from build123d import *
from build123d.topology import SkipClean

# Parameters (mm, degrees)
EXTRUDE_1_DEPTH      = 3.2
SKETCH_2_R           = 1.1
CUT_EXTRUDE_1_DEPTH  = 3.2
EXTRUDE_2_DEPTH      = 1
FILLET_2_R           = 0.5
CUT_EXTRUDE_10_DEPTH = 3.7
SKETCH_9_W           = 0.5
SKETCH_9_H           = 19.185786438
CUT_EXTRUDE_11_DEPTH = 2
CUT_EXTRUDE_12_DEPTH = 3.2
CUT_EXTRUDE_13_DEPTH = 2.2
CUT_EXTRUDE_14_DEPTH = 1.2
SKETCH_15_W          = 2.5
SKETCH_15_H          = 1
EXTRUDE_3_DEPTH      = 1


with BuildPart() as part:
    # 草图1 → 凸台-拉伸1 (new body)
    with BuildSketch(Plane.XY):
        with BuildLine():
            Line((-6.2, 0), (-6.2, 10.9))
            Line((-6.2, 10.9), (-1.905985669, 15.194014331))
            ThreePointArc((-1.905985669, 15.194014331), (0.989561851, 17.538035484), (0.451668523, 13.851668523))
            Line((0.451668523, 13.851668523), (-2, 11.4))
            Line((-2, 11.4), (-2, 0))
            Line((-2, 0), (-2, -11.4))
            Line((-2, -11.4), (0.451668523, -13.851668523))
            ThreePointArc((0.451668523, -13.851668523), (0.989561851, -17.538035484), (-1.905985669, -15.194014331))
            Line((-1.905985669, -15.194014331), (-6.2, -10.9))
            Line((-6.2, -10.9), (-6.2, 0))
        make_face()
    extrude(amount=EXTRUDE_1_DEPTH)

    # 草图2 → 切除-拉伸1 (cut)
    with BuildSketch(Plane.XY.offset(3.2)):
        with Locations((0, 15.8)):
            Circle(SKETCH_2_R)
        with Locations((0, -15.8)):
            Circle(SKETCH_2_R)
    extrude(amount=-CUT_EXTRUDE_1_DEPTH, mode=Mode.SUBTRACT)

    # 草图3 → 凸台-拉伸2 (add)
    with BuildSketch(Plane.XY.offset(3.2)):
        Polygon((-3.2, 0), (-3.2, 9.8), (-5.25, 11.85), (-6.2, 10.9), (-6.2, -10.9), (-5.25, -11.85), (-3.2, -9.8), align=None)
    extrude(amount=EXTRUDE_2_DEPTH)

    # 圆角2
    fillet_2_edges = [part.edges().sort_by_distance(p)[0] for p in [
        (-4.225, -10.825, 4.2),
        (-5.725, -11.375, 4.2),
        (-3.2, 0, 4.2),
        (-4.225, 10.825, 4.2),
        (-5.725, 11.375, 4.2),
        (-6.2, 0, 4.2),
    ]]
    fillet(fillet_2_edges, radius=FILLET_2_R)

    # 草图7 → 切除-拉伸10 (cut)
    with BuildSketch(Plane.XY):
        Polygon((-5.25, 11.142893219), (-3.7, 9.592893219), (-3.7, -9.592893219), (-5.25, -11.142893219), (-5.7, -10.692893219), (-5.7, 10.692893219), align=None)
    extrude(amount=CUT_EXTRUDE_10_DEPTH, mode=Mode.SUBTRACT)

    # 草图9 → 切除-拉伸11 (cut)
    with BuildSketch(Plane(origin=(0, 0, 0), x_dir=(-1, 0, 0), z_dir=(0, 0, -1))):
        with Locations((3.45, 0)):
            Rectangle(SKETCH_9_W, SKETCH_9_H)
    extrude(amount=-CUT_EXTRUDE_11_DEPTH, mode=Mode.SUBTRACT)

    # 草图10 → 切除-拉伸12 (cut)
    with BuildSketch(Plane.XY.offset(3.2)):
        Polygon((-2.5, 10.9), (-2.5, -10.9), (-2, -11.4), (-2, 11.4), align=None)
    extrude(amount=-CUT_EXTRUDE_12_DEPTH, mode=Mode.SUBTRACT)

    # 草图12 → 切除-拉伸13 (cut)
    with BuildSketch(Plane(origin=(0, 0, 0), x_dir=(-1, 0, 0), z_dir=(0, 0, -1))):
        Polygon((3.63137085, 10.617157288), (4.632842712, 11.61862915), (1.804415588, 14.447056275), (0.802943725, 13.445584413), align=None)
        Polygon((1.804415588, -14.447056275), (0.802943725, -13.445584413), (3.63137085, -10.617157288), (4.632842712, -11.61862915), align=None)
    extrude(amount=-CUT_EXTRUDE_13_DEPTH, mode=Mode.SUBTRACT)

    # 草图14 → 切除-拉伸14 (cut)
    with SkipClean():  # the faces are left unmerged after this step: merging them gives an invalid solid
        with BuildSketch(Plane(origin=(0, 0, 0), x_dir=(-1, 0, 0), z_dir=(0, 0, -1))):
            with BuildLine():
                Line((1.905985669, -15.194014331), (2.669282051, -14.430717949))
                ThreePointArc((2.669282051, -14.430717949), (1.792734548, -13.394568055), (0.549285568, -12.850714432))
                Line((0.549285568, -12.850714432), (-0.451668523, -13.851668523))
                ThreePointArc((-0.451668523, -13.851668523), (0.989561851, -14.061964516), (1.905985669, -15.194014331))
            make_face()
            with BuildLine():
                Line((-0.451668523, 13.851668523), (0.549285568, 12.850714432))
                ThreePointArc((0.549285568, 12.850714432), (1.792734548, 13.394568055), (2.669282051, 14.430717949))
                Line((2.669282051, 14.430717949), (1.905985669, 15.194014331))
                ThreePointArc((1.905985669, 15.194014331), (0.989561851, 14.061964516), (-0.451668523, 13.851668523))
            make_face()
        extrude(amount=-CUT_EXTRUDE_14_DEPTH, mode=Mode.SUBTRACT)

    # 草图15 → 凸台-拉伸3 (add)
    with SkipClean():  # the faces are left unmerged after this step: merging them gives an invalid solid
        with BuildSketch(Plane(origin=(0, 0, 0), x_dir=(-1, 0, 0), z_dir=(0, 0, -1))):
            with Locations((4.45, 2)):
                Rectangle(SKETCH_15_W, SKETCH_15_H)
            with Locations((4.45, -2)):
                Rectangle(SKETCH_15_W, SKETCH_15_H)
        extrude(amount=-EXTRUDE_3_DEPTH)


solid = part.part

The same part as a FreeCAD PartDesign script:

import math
import FreeCAD as App
import Part
import Sketcher

V = App.Vector
Q = App.Units.Quantity


def edges_at(feature, points):
    """Names of the edges that pass closest to the given points."""
    edges = feature.Shape.Edges
    near = lambda p: min(range(len(edges)), key=lambda i: edges[i].distToShape(Part.Vertex(*p))[0])
    return sorted({f"Edge{near(p) + 1}" for p in points})


def add_polygon(sketch, points):
    """Adds a closed chain of lines whose ends are joined by coincident constraints."""
    first, n = sketch.GeometryCount, len(points)
    for a, b in zip(points, points[1:] + points[:1]):
        sketch.addGeometry(Part.LineSegment(App.Vector(*a, 0), App.Vector(*b, 0)), False)
    for i in range(n):
        sketch.addConstraint(Sketcher.Constraint("Coincident", first + i, 2, first + (i + 1) % n, 1))

doc = App.newDocument("Part")
body = doc.addObject("PartDesign::Body", "Body")

# Sketch on XY plane
sketch1 = body.newObject("Sketcher::SketchObject", "Sketch")
sketch1.AttachmentSupport = (doc.getObject("XY_Plane"), [""])
sketch1.MapMode = "FlatFace"
sketch1.addGeometry([
    Part.LineSegment(V(-1.9, 15.2, 0), V(-6.2, 10.9, 0)),  # 0
    Part.LineSegment(V(-6.2, 10.9, 0), V(-6.2, -10.9, 0)),  # 1
    Part.LineSegment(V(-6.2, -10.9, 0), V(-1.9, -15.2, 0)),  # 2
    Part.ArcOfCircle(Part.Circle(V(0, -15.8, 0), V(0, 0, 1), 2), math.radians(162), math.radians(437)),  # 3
    Part.LineSegment(V(0.5, -13.9, 0), V(-2, -11.4, 0)),  # 4
    Part.LineSegment(V(-2, -11.4, 0), V(-2, 11.4, 0)),  # 5
    Part.LineSegment(V(-2, 11.4, 0), V(0.5, 13.9, 0)),  # 6
    Part.ArcOfCircle(Part.Circle(V(0, 15.8, 0), V(0, 0, 1), 2), math.radians(-77), math.radians(198)),  # 7
], False)
sketch1.addConstraint([
    Sketcher.Constraint("Coincident", 0, 2, 1, 1),
    Sketcher.Constraint("Coincident", 1, 2, 2, 1),
    Sketcher.Constraint("Coincident", 2, 2, 3, 1),
    Sketcher.Constraint("Coincident", 3, 2, 4, 1),
    Sketcher.Constraint("Coincident", 4, 2, 5, 1),
    Sketcher.Constraint("Coincident", 5, 2, 6, 1),
    Sketcher.Constraint("Coincident", 6, 2, 7, 1),
    Sketcher.Constraint("Coincident", 7, 2, 0, 1),
    Sketcher.Constraint("Vertical", 1),
    Sketcher.Constraint("Vertical", 5),
    Sketcher.Constraint("Equal", 3, 7),
    Sketcher.Constraint("Symmetric", 3, 3, 7, 3, -1, 1),
    Sketcher.Constraint("Symmetric", 3, 2, 6, 2, -1),
    Sketcher.Constraint("Perpendicular", 0, 2),
    Sketcher.Constraint("Parallel", 2, 4),
    Sketcher.Constraint("Perpendicular", 4, 6),
    Sketcher.Constraint("Vertical", 2, 2, 7, 2),
    Sketcher.Constraint("Equal", 0, 2),
    Sketcher.Constraint("Radius", 3, Q("2 mm")),
    Sketcher.Constraint("DistanceY", 1, 2, 1, 1, Q("21.8 mm")),
    Sketcher.Constraint("DistanceY", 5, 1, 5, 2, Q("22.8 mm")),
    Sketcher.Constraint("DistanceX", 4, 2, -1, 1, Q("2 mm")),
    Sketcher.Constraint("DistanceY", 3, 3, -1, 1, Q("15.8 mm")),
    Sketcher.Constraint("DistanceX", 0, 2, -1, 1, Q("6.2 mm")),
])
pad1 = body.newObject("PartDesign::Pad", "Pad")
pad1.Profile = sketch1
pad1.Length = 3.2

# Sketch on XY plane
sketch2 = body.newObject("Sketcher::SketchObject", "Sketch001")
sketch2.AttachmentSupport = (doc.getObject("XY_Plane"), [""])
sketch2.MapMode = "FlatFace"
sketch2.AttachmentOffset = App.Placement(V(0, 0, 3.2), App.Rotation())
sketch2.addGeometry([
    Part.Circle(V(0, 15.8, 0), V(0, 0, 1), 1.1),
    Part.Circle(V(0, -15.8, 0), V(0, 0, 1), 1.1),
], False)
sketch2.addConstraint([
    Sketcher.Constraint("Equal", 0, 1),
    Sketcher.Constraint("Symmetric", 0, 3, 1, 3, -1, 1),
    Sketcher.Constraint("PointOnObject", 0, 3, -2),
    Sketcher.Constraint("Diameter", 0, Q("2.2 mm")),
    Sketcher.Constraint("DistanceY", -1, 1, 0, 3, Q("15.8 mm")),
])
pocket1 = body.newObject("PartDesign::Pocket", "Pocket")
pocket1.Profile = sketch2
pocket1.Length = 3.2

# Sketch on XY plane
sketch3 = body.newObject("Sketcher::SketchObject", "Sketch002")
sketch3.AttachmentSupport = (doc.getObject("XY_Plane"), [""])
sketch3.MapMode = "FlatFace"
sketch3.AttachmentOffset = App.Placement(V(0, 0, 3.2), App.Rotation())
add_polygon(sketch3, [(-3.2, 9.8), (-5.2, 11.8), (-6.2, 10.9), (-6.2, -10.9), (-5.2, -11.8), (-3.2, -9.8)])  # lines 0-5
sketch3.addConstraint([
    Sketcher.Constraint("Vertical", 2),
    Sketcher.Constraint("Vertical", 5),
    Sketcher.Constraint("Symmetric", 0, 2, 3, 2, -1),
    Sketcher.Constraint("Perpendicular", 0, 1),
    Sketcher.Constraint("Perpendicular", 1, 3),
    Sketcher.Constraint("Perpendicular", 3, 4),
    Sketcher.Constraint("Equal", 1, 3),
    Sketcher.Constraint("DistanceY", 2, 2, 2, 1, Q("21.8 mm")),
    Sketcher.Constraint("DistanceY", 5, 1, 5, 2, Q("19.6 mm")),
    Sketcher.Constraint("DistanceX", 2, 2, 4, 2, Q("3 mm")),
    Sketcher.Constraint("DistanceX", 1, 2, -1, 1, Q("6.2 mm")),
])
pad2 = body.newObject("PartDesign::Pad", "Pad001")
pad2.Profile = sketch3
pad2.Length = 1
doc.recompute()

fillet = body.newObject("PartDesign::Fillet", "Fillet")
fillet.Base = (pad2, edges_at(pad2, [
    (-4.225, -10.825, 4.2),
    (-5.725, -11.375, 4.2),
    (-3.2, 0, 4.2),
    (-4.225, 10.825, 4.2),
    (-5.725, 11.375, 4.2),
    (-6.2, 0, 4.2),
]))
fillet.Radius = 0.5

# Sketch on XY plane
sketch4 = body.newObject("Sketcher::SketchObject", "Sketch003")
sketch4.AttachmentSupport = (doc.getObject("XY_Plane"), [""])
sketch4.MapMode = "FlatFace"
add_polygon(sketch4, [(-3.7, 9.6), (-5.2, 11.1), (-5.7, 10.7), (-5.7, -10.7), (-5.2, -11.1), (-3.7, -9.6)])  # lines 0-5
sketch4.addConstraint([
    Sketcher.Constraint("Vertical", 2),
    Sketcher.Constraint("Vertical", 5),
    Sketcher.Constraint("Symmetric", 0, 2, 3, 2, -1),
    Sketcher.Constraint("Perpendicular", 0, 1),
    Sketcher.Constraint("Perpendicular", 1, 3),
    Sketcher.Constraint("Perpendicular", 3, 4),
    Sketcher.Constraint("Equal", 1, 3),
    Sketcher.Constraint("DistanceX", 2, 2, 4, 2, Q("2 mm")),
    Sketcher.Constraint("DistanceX", 1, 2, -1, 1, Q("5.7 mm")),
    Sketcher.Constraint("DistanceY", 2, 2, 4, 2, Q("1.1 mm")),
    Sketcher.Constraint("DistanceY", 2, 2, 2, 1, Q("21.385786 mm")),
])
pocket2 = body.newObject("PartDesign::Pocket", "Pocket001")
pocket2.Profile = sketch4
pocket2.Length = 3.7
pocket2.Reversed = True

# Sketch on XY plane
sketch5 = body.newObject("Sketcher::SketchObject", "Sketch004")
sketch5.AttachmentSupport = (doc.getObject("XY_Plane"), [""])
sketch5.MapMode = "FlatFace"
add_polygon(sketch5, [(-3.2, 9.6), (-3.2, -9.6), (-3.7, -9.6), (-3.7, 9.6)])  # lines 0-3
sketch5.addConstraint([
    Sketcher.Constraint("Vertical", 0),
    Sketcher.Constraint("Horizontal", 1),
    Sketcher.Constraint("Vertical", 2),
    Sketcher.Constraint("Horizontal", 3),
    Sketcher.Constraint("DistanceX", 1, 2, 1, 1, Q("0.5 mm")),
    Sketcher.Constraint("DistanceX", 0, 2, -1, 1, Q("3.2 mm")),
    Sketcher.Constraint("DistanceY", 0, 2, 0, 1, Q("19.185786 mm")),
    Sketcher.Constraint("DistanceY", 0, 2, -1, 1, Q("9.592893 mm")),
])
pocket3 = body.newObject("PartDesign::Pocket", "Pocket002")
pocket3.Profile = sketch5
pocket3.Length = 2
pocket3.Reversed = True

# Sketch on XY plane
sketch6 = body.newObject("Sketcher::SketchObject", "Sketch005")
sketch6.AttachmentSupport = (doc.getObject("XY_Plane"), [""])
sketch6.MapMode = "FlatFace"
sketch6.AttachmentOffset = App.Placement(V(0, 0, 3.2), App.Rotation())
add_polygon(sketch6, [(-2.5, 10.9), (-2.5, -10.9), (-2, -11.4), (-2, 11.4)])  # lines 0-3
sketch6.addConstraint([
    Sketcher.Constraint("Vertical", 0),
    Sketcher.Constraint("Vertical", 2),
    Sketcher.Constraint("Perpendicular", 1, 3),
    Sketcher.Constraint("Equal", 1, 3),
    Sketcher.Constraint("DistanceY", 0, 2, 0, 1, Q("21.8 mm")),
    Sketcher.Constraint("DistanceY", 2, 1, 2, 2, Q("22.8 mm")),
    Sketcher.Constraint("DistanceX", 1, 2, -1, 1, Q("2 mm")),
    Sketcher.Constraint("DistanceY", 0, 2, -1, 1, Q("10.9 mm")),
])
pocket4 = body.newObject("PartDesign::Pocket", "Pocket003")
pocket4.Profile = sketch6
pocket4.Length = 3.2

# Sketch on XY plane
sketch7 = body.newObject("Sketcher::SketchObject", "Sketch006")
sketch7.AttachmentSupport = (doc.getObject("XY_Plane"), [""])
sketch7.MapMode = "FlatFace"
add_polygon(sketch7, [(-3.6, 10.6), (-4.6, 11.6), (-1.8, 14.4), (-0.8, 13.4)])  # lines 0-3
add_polygon(sketch7, [(-0.8, -13.4), (-1.8, -14.4), (-4.6, -11.6), (-3.6, -10.6)])  # lines 4-7
sketch7.addConstraint([
    Sketcher.Constraint("Symmetric", 1, 2, 4, 2, -1),
    Sketcher.Constraint("Symmetric", 0, 2, 5, 2, -1),
    Sketcher.Constraint("Symmetric", 3, 2, 6, 2, -1),
    Sketcher.Constraint("Symmetric", 2, 2, 7, 2, -1),
    Sketcher.Constraint("Perpendicular", 0, 1),
    Sketcher.Constraint("Perpendicular", 1, 2),
    Sketcher.Constraint("Perpendicular", 2, 3),
    Sketcher.Constraint("Parallel", 3, 4),
    Sketcher.Constraint("Distance", 1, Q("4 mm")),
    Sketcher.Constraint("DistanceX", 0, 2, 2, 2, Q("3.829899 mm")),
    Sketcher.Constraint("DistanceY", -1, 1, 0, 2, Q("11.618629 mm")),
    Sketcher.Constraint("DistanceX", 3, 2, -1, 1, Q("3.631371 mm")),
])
pocket5 = body.newObject("PartDesign::Pocket", "Pocket004")
pocket5.Profile = sketch7
pocket5.Length = 2.2
pocket5.Reversed = True

# Sketch on XY plane
sketch8 = body.newObject("Sketcher::SketchObject", "Sketch007")
sketch8.AttachmentSupport = (doc.getObject("XY_Plane"), [""])
sketch8.MapMode = "FlatFace"
sketch8.addGeometry([
    Part.LineSegment(V(-1.9, -15.2, 0), V(-2.7, -14.4, 0)),  # 0
    Part.ArcOfCircle(Part.Circle(V(0, -15.8, 0), V(0, 0, 1), 3), math.radians(101), math.radians(153)),  # 1
    Part.LineSegment(V(-0.5, -12.9, 0), V(0.5, -13.9, 0)),  # 2
    Part.ArcOfCircle(Part.Circle(V(0, -15.8, 0), V(0, 0, 1), 2), math.radians(77), math.radians(162)),  # 3
    Part.LineSegment(V(0.5, 13.9, 0), V(-0.5, 12.9, 0)),  # 4
    Part.ArcOfCircle(Part.Circle(V(0, 15.8, 0), V(0, 0, 1), 3), math.radians(-153), math.radians(-101)),  # 5
    Part.LineSegment(V(-2.7, 14.4, 0), V(-1.9, 15.2, 0)),  # 6
    Part.ArcOfCircle(Part.Circle(V(0, 15.8, 0), V(0, 0, 1), 2), math.radians(-162), math.radians(-77)),  # 7
], False)
sketch8.addConstraint([
    Sketcher.Constraint("Coincident", 0, 2, 1, 2),
    Sketcher.Constraint("Coincident", 1, 1, 2, 1),
    Sketcher.Constraint("Coincident", 2, 2, 3, 1),
    Sketcher.Constraint("Coincident", 3, 2, 0, 1),
    Sketcher.Constraint("Coincident", 4, 2, 5, 2),
    Sketcher.Constraint("Coincident", 5, 1, 6, 1),
    Sketcher.Constraint("Coincident", 6, 2, 7, 1),
    Sketcher.Constraint("Coincident", 7, 2, 4, 1),
    Sketcher.Constraint("Coincident", 3, 3, 1, 3),
    Sketcher.Constraint("Coincident", 7, 3, 5, 3),
    Sketcher.Constraint("Equal", 1, 5),
    Sketcher.Constraint("Equal", 3, 7),
    Sketcher.Constraint("Symmetric", 1, 3, 5, 3, -1, 1),
    Sketcher.Constraint("Symmetric", 1, 1, 4, 2, -1),
    Sketcher.Constraint("Parallel", 0, 2),
    Sketcher.Constraint("Perpendicular", 2, 4),
    Sketcher.Constraint("Parallel", 4, 6),
    Sketcher.Constraint("Vertical", 0, 2, 5, 1),
    Sketcher.Constraint("Vertical", 3, 2, 6, 2),
    Sketcher.Constraint("Radius", 1, Q("3 mm")),
    Sketcher.Constraint("Radius", 3, Q("2 mm")),
    Sketcher.Constraint("DistanceY", 1, 3, -1, 1, Q("15.8 mm")),
    Sketcher.Constraint("DistanceX", 3, 2, 1, 1, Q("1.3567 mm")),
    Sketcher.Constraint("DistanceY", 3, 2, 1, 1, Q("2.3433 mm")),
])
pocket6 = body.newObject("PartDesign::Pocket", "Pocket005")
pocket6.Profile = sketch8
pocket6.Length = 1.2
pocket6.Reversed = True

# Sketch on XY plane
sketch9 = body.newObject("Sketcher::SketchObject", "Sketch008")
sketch9.AttachmentSupport = (doc.getObject("XY_Plane"), [""])
sketch9.MapMode = "FlatFace"
add_polygon(sketch9, [(-3.2, 2.5), (-3.2, 1.5), (-5.7, 1.5), (-5.7, 2.5)])  # lines 0-3
add_polygon(sketch9, [(-3.2, -1.5), (-3.2, -2.5), (-5.7, -2.5), (-5.7, -1.5)])  # lines 4-7
sketch9.addConstraint([
    Sketcher.Constraint("Vertical", 0),
    Sketcher.Constraint("Horizontal", 1),
    Sketcher.Constraint("Vertical", 2),
    Sketcher.Constraint("Horizontal", 3),
    Sketcher.Constraint("Vertical", 4),
    Sketcher.Constraint("Horizontal", 5),
    Sketcher.Constraint("Vertical", 6),
    Sketcher.Constraint("Horizontal", 7),
    Sketcher.Constraint("Symmetric", 3, 2, 4, 2, -1),
    Sketcher.Constraint("Symmetric", 1, 2, 6, 2, -1),
    Sketcher.Constraint("DistanceY", 0, 2, 0, 1, Q("1 mm")),
    Sketcher.Constraint("DistanceX", 1, 2, 1, 1, Q("2.5 mm")),
    Sketcher.Constraint("DistanceY", 4, 2, 0, 2, Q("4 mm")),
    Sketcher.Constraint("DistanceX", 0, 2, -1, 1, Q("3.2 mm")),
])
pad3 = body.newObject("PartDesign::Pad", "Pad002")
pad3.Profile = sketch9
pad3.Length = 1

doc.recompute()
